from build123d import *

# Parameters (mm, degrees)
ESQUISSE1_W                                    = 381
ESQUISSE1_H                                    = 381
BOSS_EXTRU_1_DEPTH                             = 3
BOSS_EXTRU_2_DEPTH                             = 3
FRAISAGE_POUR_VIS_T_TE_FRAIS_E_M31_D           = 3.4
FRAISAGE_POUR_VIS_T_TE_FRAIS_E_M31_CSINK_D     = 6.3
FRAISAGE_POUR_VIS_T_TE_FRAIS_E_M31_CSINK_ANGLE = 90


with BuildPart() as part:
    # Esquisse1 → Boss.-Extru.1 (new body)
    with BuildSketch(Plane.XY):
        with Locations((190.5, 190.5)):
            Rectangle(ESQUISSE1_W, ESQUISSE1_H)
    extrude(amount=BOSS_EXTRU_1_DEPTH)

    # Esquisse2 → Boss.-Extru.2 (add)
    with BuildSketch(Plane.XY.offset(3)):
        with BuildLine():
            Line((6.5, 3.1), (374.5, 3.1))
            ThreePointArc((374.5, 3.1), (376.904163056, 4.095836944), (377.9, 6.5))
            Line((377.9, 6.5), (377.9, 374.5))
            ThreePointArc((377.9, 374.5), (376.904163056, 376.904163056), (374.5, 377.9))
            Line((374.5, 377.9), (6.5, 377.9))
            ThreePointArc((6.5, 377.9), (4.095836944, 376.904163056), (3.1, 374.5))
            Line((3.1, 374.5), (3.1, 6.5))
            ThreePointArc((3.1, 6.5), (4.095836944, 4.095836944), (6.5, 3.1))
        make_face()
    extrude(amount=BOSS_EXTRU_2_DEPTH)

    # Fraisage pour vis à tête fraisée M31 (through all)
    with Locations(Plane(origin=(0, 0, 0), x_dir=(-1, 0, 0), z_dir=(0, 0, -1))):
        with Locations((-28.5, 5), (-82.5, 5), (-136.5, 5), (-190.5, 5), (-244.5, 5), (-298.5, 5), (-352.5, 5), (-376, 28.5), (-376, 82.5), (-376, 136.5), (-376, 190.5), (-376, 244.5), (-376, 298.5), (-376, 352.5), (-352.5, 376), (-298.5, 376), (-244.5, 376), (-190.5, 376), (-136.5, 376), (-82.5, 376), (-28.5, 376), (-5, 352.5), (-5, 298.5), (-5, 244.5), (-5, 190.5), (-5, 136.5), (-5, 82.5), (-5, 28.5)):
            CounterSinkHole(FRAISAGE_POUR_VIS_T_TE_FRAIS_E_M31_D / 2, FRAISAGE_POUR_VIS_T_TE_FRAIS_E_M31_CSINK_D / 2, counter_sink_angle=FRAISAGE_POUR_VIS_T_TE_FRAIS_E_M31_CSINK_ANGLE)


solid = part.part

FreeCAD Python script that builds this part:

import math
import FreeCAD as App
import Part
import Sketcher
from FreeCAD import Vector
Q = App.Units.Quantity


def add_polygon(sketch, points):
    """Adds a closed chain of lines whose ends are joined by coincident constraints."""
    first, n = sketch.GeometryCount, len(points)
    for a, b in zip(points, points[1:] + points[:1]):
        sketch.addGeometry(Part.LineSegment(App.Vector(*a, 0), App.Vector(*b, 0)), False)
    for i in range(n):
        sketch.addConstraint(Sketcher.Constraint("Coincident", first + i, 2, first + (i + 1) % n, 1))

doc = App.newDocument("Part")
body = doc.addObject("PartDesign::Body", "Body")

sketch1 = doc.addObject("Sketcher::SketchObject", "Sketch")
body.addObject(sketch1)
sketch1.AttachmentSupport = (doc.XY_Plane, [""])
sketch1.MapMode = "FlatFace"
add_polygon(sketch1, [(0, 381), (0, 0), (381, 0), (381, 381)])
sketch1.addConstraint([
    Sketcher.Constraint("Vertical", 0),
    Sketcher.Constraint("Horizontal", 1),
    Sketcher.Constraint("Vertical", 2),
    Sketcher.Constraint("Horizontal", 3),
    Sketcher.Constraint("Coincident", 0, 2, -1, 1),
    Sketcher.Constraint("Equal", 3, 0),
    Sketcher.Constraint("DistanceX", 1, 1, 1, 2, Q("381 mm")),
])
pad1 = doc.addObject("PartDesign::Pad", "Pad")
body.addObject(pad1)
pad1.Profile = sketch1
pad1.Length = 3

sketch2 = doc.addObject("Sketcher::SketchObject", "Sketch001")
body.addObject(sketch2)
sketch2.AttachmentSupport = (doc.XY_Plane, [""])
sketch2.MapMode = "FlatFace"
sketch2.AttachmentOffset = App.Placement(Vector(0, 0, 3), App.Rotation())
sketch2.addGeometry([
    Part.LineSegment(Vector(6.5, 3.1, 0), Vector(374.5, 3.1, 0)),
    Part.ArcOfCircle(Part.Circle(Vector(374.5, 6.5, 0), Vector(0, 0, 1), 3.4), math.radians(-90), math.radians(0)),
    Part.LineSegment(Vector(377.9, 6.5, 0), Vector(377.9, 374.5, 0)),
    Part.ArcOfCircle(Part.Circle(Vector(374.5, 374.5, 0), Vector(0, 0, 1), 3.4), math.radians(0), math.radians(90)),
    Part.LineSegment(Vector(374.5, 377.9, 0), Vector(6.5, 377.9, 0)),
    Part.ArcOfCircle(Part.Circle(Vector(6.5, 374.5, 0), Vector(0, 0, 1), 3.4), math.radians(90), math.radians(180)),
    Part.LineSegment(Vector(3.1, 374.5, 0), Vector(3.1, 6.5, 0)),
    Part.ArcOfCircle(Part.Circle(Vector(6.5, 6.5, 0), Vector(0, 0, 1), 3.4), math.radians(180), math.radians(270)),
], False)
sketch2.addConstraint([
    Sketcher.Constraint("Tangent", 0, 2, 1, 1),
    Sketcher.Constraint("Tangent", 1, 2, 2, 1),
    Sketcher.Constraint("Tangent", 2, 2, 3, 1),
    Sketcher.Constraint("Tangent", 3, 2, 4, 1),
    Sketcher.Constraint("Tangent", 4, 2, 5, 1),
    Sketcher.Constraint("Tangent", 5, 2, 6, 1),
    Sketcher.Constraint("Tangent", 6, 2, 7, 1),
    Sketcher.Constraint("Tangent", 7, 2, 0, 1),
    Sketcher.Constraint("Horizontal", 0),
    Sketcher.Constraint("Vertical", 2),
    Sketcher.Constraint("Horizontal", 4),
    Sketcher.Constraint("Vertical", 6),
    Sketcher.Constraint("Equal", 1, 3),
    Sketcher.Constraint("Equal", 3, 5),
    Sketcher.Constraint("Equal", 5, 7),
    Sketcher.Constraint("Equal", 4, 2),
    Sketcher.Constraint("Radius", 1, Q("3.4 mm")),
    Sketcher.Constraint("DistanceX", 0, 1, 0, 2, Q("368 mm")),
    Sketcher.Constraint("DistanceX", -1, 1, 1, 3, Q("374.5 mm")),
    Sketcher.Constraint("DistanceY", -1, 1, 1, 3, Q("6.5 mm")),
])
pad2 = doc.addObject("PartDesign::Pad", "Pad001")
body.addObject(pad2)
pad2.Profile = sketch2
pad2.Length = 3

sketch3 = doc.addObject("Sketcher::SketchObject", "Sketch002")
body.addObject(sketch3)
sketch3.AttachmentSupport = (doc.XY_Plane, [""])
sketch3.MapMode = "FlatFace"
sketch3.addGeometry([
    Part.Circle(Vector(28.5, 5, 0), Vector(0, 0, 1), 1.7),
    Part.Circle(Vector(82.5, 5, 0), Vector(0, 0, 1), 1.7),
    Part.Circle(Vector(136.5, 5, 0), Vector(0, 0, 1), 1.7),
    Part.Circle(Vector(190.5, 5, 0), Vector(0, 0, 1), 1.7),
    Part.Circle(Vector(244.5, 5, 0), Vector(0, 0, 1), 1.7),
    Part.Circle(Vector(298.5, 5, 0), Vector(0, 0, 1), 1.7),
    Part.Circle(Vector(352.5, 5, 0), Vector(0, 0, 1), 1.7),
    Part.Circle(Vector(376, 28.5, 0), Vector(0, 0, 1), 1.7),
    Part.Circle(Vector(376, 82.5, 0), Vector(0, 0, 1), 1.7),
    Part.Circle(Vector(376, 136.5, 0), Vector(0, 0, 1), 1.7),
    Part.Circle(Vector(376, 190.5, 0), Vector(0, 0, 1), 1.7),
    Part.Circle(Vector(376, 244.5, 0), Vector(0, 0, 1), 1.7),
    Part.Circle(Vector(376, 298.5, 0), Vector(0, 0, 1), 1.7),
    Part.Circle(Vector(376, 352.5, 0), Vector(0, 0, 1), 1.7),
    Part.Circle(Vector(352.5, 376, 0), Vector(0, 0, 1), 1.7),
    Part.Circle(Vector(298.5, 376, 0), Vector(0, 0, 1), 1.7),
    Part.Circle(Vector(244.5, 376, 0), Vector(0, 0, 1), 1.7),
    Part.Circle(Vector(190.5, 376, 0), Vector(0, 0, 1), 1.7),
    Part.Circle(Vector(136.5, 376, 0), Vector(0, 0, 1), 1.7),
    Part.Circle(Vector(82.5, 376, 0), Vector(0, 0, 1), 1.7),
    Part.Circle(Vector(28.5, 376, 0), Vector(0, 0, 1), 1.7),
    Part.Circle(Vector(5, 352.5, 0), Vector(0, 0, 1), 1.7),
    Part.Circle(Vector(5, 298.5, 0), Vector(0, 0, 1), 1.7),
    Part.Circle(Vector(5, 244.5, 0), Vector(0, 0, 1), 1.7),
    Part.Circle(Vector(5, 190.5, 0), Vector(0, 0, 1), 1.7),
    Part.Circle(Vector(5, 136.5, 0), Vector(0, 0, 1), 1.7),
    Part.Circle(Vector(5, 82.5, 0), Vector(0, 0, 1), 1.7),
    Part.Circle(Vector(5, 28.5, 0), Vector(0, 0, 1), 1.7),
], False)
sketch3.addConstraint([
    Sketcher.Constraint("Equal", 0, 1),
    Sketcher.Constraint("Equal", 1, 2),
    Sketcher.Constraint("Equal", 2, 3),
    Sketcher.Constraint("Equal", 3, 4),
    Sketcher.Constraint("Equal", 4, 5),
    Sketcher.Constraint("Equal", 5, 6),
    Sketcher.Constraint("Equal", 6, 7),
    Sketcher.Constraint("Equal", 7, 8),
    Sketcher.Constraint("Equal", 8, 9),
    Sketcher.Constraint("Equal", 9, 10),
    Sketcher.Constraint("Equal", 10, 11),
    Sketcher.Constraint("Equal", 11, 12),
    Sketcher.Constraint("Equal", 12, 13),
    Sketcher.Constraint("Equal", 13, 14),
    Sketcher.Constraint("Equal", 14, 15),
    Sketcher.Constraint("Equal", 15, 16),
    Sketcher.Constraint("Equal", 16, 17),
    Sketcher.Constraint("Equal", 17, 18),
    Sketcher.Constraint("Equal", 18, 19),
    Sketcher.Constraint("Equal", 19, 20),
    Sketcher.Constraint("Equal", 20, 21),
    Sketcher.Constraint("Equal", 21, 22),
    Sketcher.Constraint("Equal", 22, 23),
    Sketcher.Constraint("Equal", 23, 24),
    Sketcher.Constraint("Equal", 24, 25),
    Sketcher.Constraint("Equal", 25, 26),
    Sketcher.Constraint("Equal", 26, 27),
    Sketcher.Constraint("Horizontal", 0, 3, 1, 3),
    Sketcher.Constraint("Horizontal", 1, 3, 2, 3),
    Sketcher.Constraint("Horizontal", 2, 3, 3, 3),
    Sketcher.Constraint("Horizontal", 3, 3, 4, 3),
    Sketcher.Constraint("Horizontal", 4, 3, 5, 3),
    Sketcher.Constraint("Horizontal", 5, 3, 6, 3),
    Sketcher.Constraint("Horizontal", 14, 3, 15, 3),
    Sketcher.Constraint("Horizontal", 15, 3, 16, 3),
    Sketcher.Constraint("Horizontal", 16, 3, 17, 3),
    Sketcher.Constraint("Horizontal", 17, 3, 18, 3),
    Sketcher.Constraint("Horizontal", 18, 3, 19, 3),
    Sketcher.Constraint("Horizontal", 19, 3, 20, 3),
    Sketcher.Constraint("Horizontal", 13, 3, 21, 3),
    Sketcher.Constraint("Horizontal", 12, 3, 22, 3),
    Sketcher.Constraint("Horizontal", 11, 3, 23, 3),
    Sketcher.Constraint("Horizontal", 10, 3, 24, 3),
    Sketcher.Constraint("Horizontal", 9, 3, 25, 3),
    Sketcher.Constraint("Horizontal", 8, 3, 26, 3),
    Sketcher.Constraint("Horizontal", 7, 3, 27, 3),
    Sketcher.Constraint("Vertical", 7, 3, 8, 3),
    Sketcher.Constraint("Vertical", 8, 3, 9, 3),
    Sketcher.Constraint("Vertical", 9, 3, 10, 3),
    Sketcher.Constraint("Vertical", 10, 3, 11, 3),
    Sketcher.Constraint("Vertical", 11, 3, 12, 3),
    Sketcher.Constraint("Vertical", 12, 3, 13, 3),
    Sketcher.Constraint("Vertical", 6, 3, 14, 3),
    Sketcher.Constraint("Vertical", 5, 3, 15, 3),
    Sketcher.Constraint("Vertical", 4, 3, 16, 3),
    Sketcher.Constraint("Vertical", 3, 3, 17, 3),
    Sketcher.Constraint("Vertical", 2, 3, 18, 3),
    Sketcher.Constraint("Vertical", 1, 3, 19, 3),
    Sketcher.Constraint("Vertical", 0, 3, 20, 3),
    Sketcher.Constraint("Vertical", 21, 3, 22, 3),
    Sketcher.Constraint("Vertical", 22, 3, 23, 3),
    Sketcher.Constraint("Vertical", 23, 3, 24, 3),
    Sketcher.Constraint("Vertical", 24, 3, 25, 3),
    Sketcher.Constraint("Vertical", 25, 3, 26, 3),
    Sketcher.Constraint("Vertical", 26, 3, 27, 3),
    Sketcher.Constraint("Diameter", 0, Q("3.4 mm")),
    Sketcher.Constraint("DistanceY", -1, 1, 0, 3, Q("5 mm")),
    Sketcher.Constraint("DistanceX", -1, 1, 7, 3, Q("376 mm")),
    Sketcher.Constraint("DistanceY", -1, 1, 14, 3, Q("376 mm")),
    Sketcher.Constraint("DistanceX", -1, 1, 21, 3, Q("5 mm")),
    Sketcher.Constraint("DistanceX", 0, 3, 1, 3, Q("54 mm")),
    Sketcher.Constraint("DistanceX", 1, 3, 2, 3, Q("54 mm")),
    Sketcher.Constraint("DistanceX", 2, 3, 3, 3, Q("54 mm")),
    Sketcher.Constraint("DistanceX", 3, 3, 4, 3, Q("54 mm")),
    Sketcher.Constraint("DistanceX", 4, 3, 5, 3, Q("54 mm")),
    Sketcher.Constraint("DistanceX", 5, 3, 6, 3, Q("54 mm")),
    Sketcher.Constraint("DistanceY", 7, 3, 8, 3, Q("54 mm")),
    Sketcher.Constraint("DistanceY", 8, 3, 9, 3, Q("54 mm")),
    Sketcher.Constraint("DistanceY", 9, 3, 10, 3, Q("54 mm")),
    Sketcher.Constraint("DistanceY", 10, 3, 11, 3, Q("54 mm")),
    Sketcher.Constraint("DistanceY", 11, 3, 12, 3, Q("54 mm")),
    Sketcher.Constraint("DistanceY", 12, 3, 13, 3, Q("54 mm")),
    Sketcher.Constraint("DistanceX", -1, 1, 0, 3, Q("28.5 mm")),
    Sketcher.Constraint("DistanceY", -1, 1, 7, 3, Q("28.5 mm")),
])
doc.recompute()
hole = doc.addObject("PartDesign::Hole", "Hole")
body.addObject(hole)
hole.Profile = sketch3
hole.ThreadType = "None"
hole.Diameter = 3.4
hole.DepthType = "ThroughAll"
hole.HoleCutType = "Countersink"
hole.HoleCutDiameter = 6.3
hole.HoleCutCountersinkAngle = 90
hole.Reversed = True

doc.recompute()
